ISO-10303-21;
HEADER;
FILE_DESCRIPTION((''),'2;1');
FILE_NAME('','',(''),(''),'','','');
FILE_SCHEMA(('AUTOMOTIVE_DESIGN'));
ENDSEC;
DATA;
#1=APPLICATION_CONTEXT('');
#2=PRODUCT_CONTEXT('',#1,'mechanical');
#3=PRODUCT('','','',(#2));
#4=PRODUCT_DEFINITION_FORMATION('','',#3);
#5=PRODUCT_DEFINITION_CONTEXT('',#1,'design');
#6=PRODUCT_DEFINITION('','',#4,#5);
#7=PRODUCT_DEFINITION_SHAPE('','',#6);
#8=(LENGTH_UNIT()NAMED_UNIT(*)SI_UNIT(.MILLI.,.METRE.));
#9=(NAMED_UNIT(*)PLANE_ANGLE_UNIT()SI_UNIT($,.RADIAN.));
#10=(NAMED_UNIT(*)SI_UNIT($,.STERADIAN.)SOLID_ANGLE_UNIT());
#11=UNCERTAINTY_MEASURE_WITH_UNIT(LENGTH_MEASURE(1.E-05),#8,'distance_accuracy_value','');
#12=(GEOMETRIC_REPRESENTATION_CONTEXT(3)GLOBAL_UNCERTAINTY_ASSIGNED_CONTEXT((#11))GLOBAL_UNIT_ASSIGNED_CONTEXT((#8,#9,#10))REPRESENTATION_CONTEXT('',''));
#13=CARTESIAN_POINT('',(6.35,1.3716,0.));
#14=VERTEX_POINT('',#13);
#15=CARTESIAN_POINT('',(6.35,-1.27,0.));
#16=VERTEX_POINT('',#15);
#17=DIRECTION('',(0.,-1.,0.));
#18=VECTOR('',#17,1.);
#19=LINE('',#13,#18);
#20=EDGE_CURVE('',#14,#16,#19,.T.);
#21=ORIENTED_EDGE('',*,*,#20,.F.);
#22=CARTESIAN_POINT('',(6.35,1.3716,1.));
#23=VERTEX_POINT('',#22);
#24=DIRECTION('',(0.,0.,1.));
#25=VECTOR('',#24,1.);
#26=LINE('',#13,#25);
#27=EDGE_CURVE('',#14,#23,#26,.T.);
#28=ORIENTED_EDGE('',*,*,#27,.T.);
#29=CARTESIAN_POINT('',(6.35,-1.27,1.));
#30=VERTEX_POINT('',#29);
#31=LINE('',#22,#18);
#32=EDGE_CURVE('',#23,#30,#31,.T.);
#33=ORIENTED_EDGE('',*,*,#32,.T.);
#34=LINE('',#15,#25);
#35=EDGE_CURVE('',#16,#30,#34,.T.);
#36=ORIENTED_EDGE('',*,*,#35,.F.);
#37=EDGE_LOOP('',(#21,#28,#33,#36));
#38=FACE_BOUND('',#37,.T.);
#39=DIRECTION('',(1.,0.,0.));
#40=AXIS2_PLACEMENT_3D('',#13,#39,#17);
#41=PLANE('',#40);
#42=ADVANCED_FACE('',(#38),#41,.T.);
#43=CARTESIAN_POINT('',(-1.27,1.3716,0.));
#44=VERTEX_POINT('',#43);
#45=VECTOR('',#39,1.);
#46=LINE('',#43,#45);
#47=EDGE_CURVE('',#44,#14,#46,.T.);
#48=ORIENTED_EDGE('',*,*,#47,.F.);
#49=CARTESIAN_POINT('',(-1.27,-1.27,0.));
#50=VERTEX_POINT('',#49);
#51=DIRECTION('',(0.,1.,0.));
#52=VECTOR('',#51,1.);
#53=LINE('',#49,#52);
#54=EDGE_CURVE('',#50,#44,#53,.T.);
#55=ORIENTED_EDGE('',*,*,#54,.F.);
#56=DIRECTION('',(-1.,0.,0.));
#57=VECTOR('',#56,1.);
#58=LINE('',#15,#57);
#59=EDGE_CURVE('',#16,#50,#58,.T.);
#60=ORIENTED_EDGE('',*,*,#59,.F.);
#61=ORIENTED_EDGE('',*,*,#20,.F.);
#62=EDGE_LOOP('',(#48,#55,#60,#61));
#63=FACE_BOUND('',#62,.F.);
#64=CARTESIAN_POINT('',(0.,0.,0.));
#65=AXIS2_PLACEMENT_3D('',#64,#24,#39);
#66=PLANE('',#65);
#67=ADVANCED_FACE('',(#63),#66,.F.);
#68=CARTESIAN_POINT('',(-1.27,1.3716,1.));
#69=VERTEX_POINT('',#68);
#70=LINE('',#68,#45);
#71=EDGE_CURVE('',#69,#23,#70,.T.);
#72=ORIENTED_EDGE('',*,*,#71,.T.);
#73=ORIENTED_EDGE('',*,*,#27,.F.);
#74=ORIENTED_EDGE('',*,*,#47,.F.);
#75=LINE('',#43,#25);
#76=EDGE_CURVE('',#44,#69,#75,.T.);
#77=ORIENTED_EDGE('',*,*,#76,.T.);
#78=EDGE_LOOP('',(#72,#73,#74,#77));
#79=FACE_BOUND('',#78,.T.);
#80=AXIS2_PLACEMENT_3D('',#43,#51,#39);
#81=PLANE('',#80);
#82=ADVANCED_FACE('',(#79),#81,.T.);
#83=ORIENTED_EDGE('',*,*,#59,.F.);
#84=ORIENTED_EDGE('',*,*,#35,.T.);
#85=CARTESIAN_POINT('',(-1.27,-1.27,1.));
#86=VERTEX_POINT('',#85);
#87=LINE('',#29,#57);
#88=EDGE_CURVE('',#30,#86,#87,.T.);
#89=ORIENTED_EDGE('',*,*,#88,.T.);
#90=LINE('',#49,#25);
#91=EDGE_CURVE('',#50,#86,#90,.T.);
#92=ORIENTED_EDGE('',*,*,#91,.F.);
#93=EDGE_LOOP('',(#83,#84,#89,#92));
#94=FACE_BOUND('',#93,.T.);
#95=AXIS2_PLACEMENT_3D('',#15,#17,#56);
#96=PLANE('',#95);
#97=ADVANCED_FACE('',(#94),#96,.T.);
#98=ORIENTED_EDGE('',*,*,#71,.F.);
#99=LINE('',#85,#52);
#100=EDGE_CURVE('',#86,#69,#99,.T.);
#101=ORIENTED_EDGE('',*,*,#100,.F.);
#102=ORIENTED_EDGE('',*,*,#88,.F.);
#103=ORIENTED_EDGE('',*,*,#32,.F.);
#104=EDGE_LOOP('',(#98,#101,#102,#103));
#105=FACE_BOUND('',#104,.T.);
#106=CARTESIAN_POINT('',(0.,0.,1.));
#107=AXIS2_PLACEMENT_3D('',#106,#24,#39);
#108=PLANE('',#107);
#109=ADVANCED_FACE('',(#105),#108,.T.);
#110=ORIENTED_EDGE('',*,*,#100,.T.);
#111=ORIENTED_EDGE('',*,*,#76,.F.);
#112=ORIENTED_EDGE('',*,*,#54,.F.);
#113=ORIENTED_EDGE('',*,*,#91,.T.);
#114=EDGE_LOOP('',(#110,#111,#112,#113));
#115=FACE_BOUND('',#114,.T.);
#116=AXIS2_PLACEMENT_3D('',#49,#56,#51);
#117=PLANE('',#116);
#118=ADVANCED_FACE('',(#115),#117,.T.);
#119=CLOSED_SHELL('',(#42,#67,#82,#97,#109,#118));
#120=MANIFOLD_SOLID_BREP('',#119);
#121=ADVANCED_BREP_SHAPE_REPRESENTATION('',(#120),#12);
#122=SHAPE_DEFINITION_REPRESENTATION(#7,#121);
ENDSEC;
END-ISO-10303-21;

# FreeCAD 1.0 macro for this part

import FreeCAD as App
import Part
import Sketcher

V = App.Vector
Q = App.Units.Quantity

doc = App.newDocument("Part")
params = doc.addObject("Spreadsheet::Sheet", "Params")
for row, (alias, value) in enumerate([
    ("sketch1_width", "0.3 in"),
    ("sketch1_height", "0.104 in"),
    ("pad1_length", "1 mm"),
], start=1):
    params.set(f"A{row}", alias)
    params.set(f"B{row}", "=" + value)
    params.setAlias(f"B{row}", alias)

body = doc.addObject("PartDesign::Body", "Body")

# Sketch on XY plane
sketch1 = body.newObject("Sketcher::SketchObject", "Sketch")
sketch1.AttachmentSupport = (doc.getObject("XY_Plane"), [""])
sketch1.MapMode = "FlatFace"
sketch1.addGeometry([
    Part.LineSegment(V(6.3, 1.4, 0), V(-1.3, 1.4, 0)),
    Part.LineSegment(V(-1.3, 1.4, 0), V(-1.3, -1.3, 0)),
    Part.LineSegment(V(-1.3, -1.3, 0), V(6.3, -1.3, 0)),
    Part.LineSegment(V(6.3, -1.3, 0), V(6.3, 1.4, 0)),
], False)
sketch1.addConstraint([
    Sketcher.Constraint("Coincident", 0, 2, 1, 1),
    Sketcher.Constraint("Coincident", 1, 2, 2, 1),
    Sketcher.Constraint("Coincident", 2, 2, 3, 1),
    Sketcher.Constraint("Coincident", 3, 2, 0, 1),
    Sketcher.Constraint("Horizontal", 0),
    Sketcher.Constraint("Vertical", 1),
    Sketcher.Constraint("Horizontal", 2),
    Sketcher.Constraint("Vertical", 3),
    Sketcher.Constraint("DistanceX", 0, 2, 0, 1, Q("0.3 in")),
    Sketcher.Constraint("DistanceY", 1, 2, 1, 1, Q("0.104 in")),
    Sketcher.Constraint("DistanceX", 0, 2, -1, 1, Q("0.05 in")),
    Sketcher.Constraint("DistanceY", 1, 2, -1, 1, Q("0.05 in")),
])
sketch1.setExpression("Constraints[8]", "Params.sketch1_width")
sketch1.setExpression("Constraints[9]", "Params.sketch1_height")
pad1 = body.newObject("PartDesign::Pad", "Pad")
pad1.Profile = sketch1
pad1.setExpression("Length", "Params.pad1_length")

doc.recompute()
